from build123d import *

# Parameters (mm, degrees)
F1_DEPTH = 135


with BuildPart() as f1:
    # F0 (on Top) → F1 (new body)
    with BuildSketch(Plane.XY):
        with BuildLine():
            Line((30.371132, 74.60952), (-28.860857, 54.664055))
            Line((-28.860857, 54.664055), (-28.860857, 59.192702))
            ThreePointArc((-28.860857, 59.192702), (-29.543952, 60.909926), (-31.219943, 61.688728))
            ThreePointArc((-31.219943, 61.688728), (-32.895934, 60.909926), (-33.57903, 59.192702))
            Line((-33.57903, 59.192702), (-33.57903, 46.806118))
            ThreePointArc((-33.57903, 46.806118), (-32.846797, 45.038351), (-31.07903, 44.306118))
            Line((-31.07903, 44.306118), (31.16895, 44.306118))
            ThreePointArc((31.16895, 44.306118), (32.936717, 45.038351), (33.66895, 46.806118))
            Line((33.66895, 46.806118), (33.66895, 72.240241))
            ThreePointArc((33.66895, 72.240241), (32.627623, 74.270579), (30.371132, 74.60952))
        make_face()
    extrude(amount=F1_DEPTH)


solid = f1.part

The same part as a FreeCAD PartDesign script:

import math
import FreeCAD as App
import Part
import Sketcher

V = App.Vector
Q = App.Units.Quantity

doc = App.newDocument("Part")
params = doc.addObject("Spreadsheet::Sheet", "Params")
for row, (alias, value) in enumerate([
    ("sketch1_radius", "2.5 mm"),
    ("sketch1_length", "62.500001 mm"),
    ("pad1_length", "135 mm"),
], start=1):
    params.set(f"A{row}", alias)
    params.set(f"B{row}", "=" + value)
    params.setAlias(f"B{row}", alias)

body = doc.addObject("PartDesign::Body", "Body")

sketch1 = body.newObject("Sketcher::SketchObject", "Sketch")
sketch1.AttachmentSupport = (doc.getObject("XY_Plane"), [""])
sketch1.MapMode = "FlatFace"
sketch1.addGeometry([
    Part.LineSegment(V(30.4, 74.6, 0), V(-28.9, 54.7, 0)),
    Part.LineSegment(V(-28.9, 54.7, 0), V(-28.9, 59.2, 0)),
    Part.ArcOfCircle(Part.Circle(V(-31.4, 59.2, 0), V(0, 0, 1), 2.5), math.radians(0), math.radians(87)),
    Part.ArcOfCircle(Part.Circle(V(-31.1, 59.2, 0), V(0, 0, 1), 2.5), math.radians(93), math.radians(180)),
    Part.LineSegment(V(-33.6, 59.2, 0), V(-33.6, 46.8, 0)),
    Part.ArcOfCircle(Part.Circle(V(-31.1, 46.8, 0), V(0, 0, 1), 2.5), math.radians(180), math.radians(270)),
    Part.LineSegment(V(-31.1, 44.3, 0), V(31.2, 44.3, 0)),
    Part.ArcOfCircle(Part.Circle(V(31.2, 46.8, 0), V(0, 0, 1), 2.5), math.radians(-90), math.radians(0)),
    Part.LineSegment(V(33.7, 46.8, 0), V(33.7, 72.2, 0)),
    Part.ArcOfCircle(Part.Circle(V(31.2, 72.2, 0), V(0, 0, 1), 2.5), math.radians(0), math.radians(109)),
], False)
sketch1.addConstraint([
    Sketcher.Constraint("Coincident", 0, 2, 1, 1),
    Sketcher.Constraint("Tangent", 1, 2, 2, 1),
    Sketcher.Constraint("Coincident", 2, 2, 3, 1),
    Sketcher.Constraint("Tangent", 3, 2, 4, 1),
    Sketcher.Constraint("Tangent", 4, 2, 5, 1),
    Sketcher.Constraint("Tangent", 5, 2, 6, 1),
    Sketcher.Constraint("Tangent", 6, 2, 7, 1),
    Sketcher.Constraint("Tangent", 7, 2, 8, 1),
    Sketcher.Constraint("Tangent", 8, 2, 9, 1),
    Sketcher.Constraint("Tangent", 9, 2, 0, 1),
    Sketcher.Constraint("Vertical", 1),
    Sketcher.Constraint("Vertical", 4),
    Sketcher.Constraint("Horizontal", 6),
    Sketcher.Constraint("Vertical", 8),
    Sketcher.Constraint("Equal", 2, 3),
    Sketcher.Constraint("Equal", 3, 5),
    Sketcher.Constraint("Equal", 5, 7),
    Sketcher.Constraint("Equal", 7, 9),
    Sketcher.Constraint("Horizontal", 2, 3, 3, 3),
    Sketcher.Constraint("Radius", 2, Q("2.5 mm")),
    Sketcher.Constraint("Distance", 0, Q("62.500001 mm")),
    Sketcher.Constraint("DistanceX", 6, 1, 6, 2, Q("62.24798 mm")),
    Sketcher.Constraint("DistanceY", -1, 1, 3, 3, Q("59.192701 mm")),
    Sketcher.Constraint("DistanceY", 7, 2, 9, 2, Q("27.803402 mm")),
    Sketcher.Constraint("DistanceY", 1, 1, 1, 2, Q("4.528647 mm")),
    Sketcher.Constraint("DistanceY", 4, 2, 4, 1, Q("12.386584 mm")),
    Sketcher.Constraint("DistanceX", 3, 3, -1, 1, Q("31.079028 mm")),
])
sketch1.setExpression("Constraints[19]", "Params.sketch1_radius")
sketch1.setExpression("Constraints[20]", "Params.sketch1_length")
pad1 = body.newObject("PartDesign::Pad", "Pad")
pad1.Profile = sketch1
pad1.setExpression("Length", "Params.pad1_length")

doc.recompute()
